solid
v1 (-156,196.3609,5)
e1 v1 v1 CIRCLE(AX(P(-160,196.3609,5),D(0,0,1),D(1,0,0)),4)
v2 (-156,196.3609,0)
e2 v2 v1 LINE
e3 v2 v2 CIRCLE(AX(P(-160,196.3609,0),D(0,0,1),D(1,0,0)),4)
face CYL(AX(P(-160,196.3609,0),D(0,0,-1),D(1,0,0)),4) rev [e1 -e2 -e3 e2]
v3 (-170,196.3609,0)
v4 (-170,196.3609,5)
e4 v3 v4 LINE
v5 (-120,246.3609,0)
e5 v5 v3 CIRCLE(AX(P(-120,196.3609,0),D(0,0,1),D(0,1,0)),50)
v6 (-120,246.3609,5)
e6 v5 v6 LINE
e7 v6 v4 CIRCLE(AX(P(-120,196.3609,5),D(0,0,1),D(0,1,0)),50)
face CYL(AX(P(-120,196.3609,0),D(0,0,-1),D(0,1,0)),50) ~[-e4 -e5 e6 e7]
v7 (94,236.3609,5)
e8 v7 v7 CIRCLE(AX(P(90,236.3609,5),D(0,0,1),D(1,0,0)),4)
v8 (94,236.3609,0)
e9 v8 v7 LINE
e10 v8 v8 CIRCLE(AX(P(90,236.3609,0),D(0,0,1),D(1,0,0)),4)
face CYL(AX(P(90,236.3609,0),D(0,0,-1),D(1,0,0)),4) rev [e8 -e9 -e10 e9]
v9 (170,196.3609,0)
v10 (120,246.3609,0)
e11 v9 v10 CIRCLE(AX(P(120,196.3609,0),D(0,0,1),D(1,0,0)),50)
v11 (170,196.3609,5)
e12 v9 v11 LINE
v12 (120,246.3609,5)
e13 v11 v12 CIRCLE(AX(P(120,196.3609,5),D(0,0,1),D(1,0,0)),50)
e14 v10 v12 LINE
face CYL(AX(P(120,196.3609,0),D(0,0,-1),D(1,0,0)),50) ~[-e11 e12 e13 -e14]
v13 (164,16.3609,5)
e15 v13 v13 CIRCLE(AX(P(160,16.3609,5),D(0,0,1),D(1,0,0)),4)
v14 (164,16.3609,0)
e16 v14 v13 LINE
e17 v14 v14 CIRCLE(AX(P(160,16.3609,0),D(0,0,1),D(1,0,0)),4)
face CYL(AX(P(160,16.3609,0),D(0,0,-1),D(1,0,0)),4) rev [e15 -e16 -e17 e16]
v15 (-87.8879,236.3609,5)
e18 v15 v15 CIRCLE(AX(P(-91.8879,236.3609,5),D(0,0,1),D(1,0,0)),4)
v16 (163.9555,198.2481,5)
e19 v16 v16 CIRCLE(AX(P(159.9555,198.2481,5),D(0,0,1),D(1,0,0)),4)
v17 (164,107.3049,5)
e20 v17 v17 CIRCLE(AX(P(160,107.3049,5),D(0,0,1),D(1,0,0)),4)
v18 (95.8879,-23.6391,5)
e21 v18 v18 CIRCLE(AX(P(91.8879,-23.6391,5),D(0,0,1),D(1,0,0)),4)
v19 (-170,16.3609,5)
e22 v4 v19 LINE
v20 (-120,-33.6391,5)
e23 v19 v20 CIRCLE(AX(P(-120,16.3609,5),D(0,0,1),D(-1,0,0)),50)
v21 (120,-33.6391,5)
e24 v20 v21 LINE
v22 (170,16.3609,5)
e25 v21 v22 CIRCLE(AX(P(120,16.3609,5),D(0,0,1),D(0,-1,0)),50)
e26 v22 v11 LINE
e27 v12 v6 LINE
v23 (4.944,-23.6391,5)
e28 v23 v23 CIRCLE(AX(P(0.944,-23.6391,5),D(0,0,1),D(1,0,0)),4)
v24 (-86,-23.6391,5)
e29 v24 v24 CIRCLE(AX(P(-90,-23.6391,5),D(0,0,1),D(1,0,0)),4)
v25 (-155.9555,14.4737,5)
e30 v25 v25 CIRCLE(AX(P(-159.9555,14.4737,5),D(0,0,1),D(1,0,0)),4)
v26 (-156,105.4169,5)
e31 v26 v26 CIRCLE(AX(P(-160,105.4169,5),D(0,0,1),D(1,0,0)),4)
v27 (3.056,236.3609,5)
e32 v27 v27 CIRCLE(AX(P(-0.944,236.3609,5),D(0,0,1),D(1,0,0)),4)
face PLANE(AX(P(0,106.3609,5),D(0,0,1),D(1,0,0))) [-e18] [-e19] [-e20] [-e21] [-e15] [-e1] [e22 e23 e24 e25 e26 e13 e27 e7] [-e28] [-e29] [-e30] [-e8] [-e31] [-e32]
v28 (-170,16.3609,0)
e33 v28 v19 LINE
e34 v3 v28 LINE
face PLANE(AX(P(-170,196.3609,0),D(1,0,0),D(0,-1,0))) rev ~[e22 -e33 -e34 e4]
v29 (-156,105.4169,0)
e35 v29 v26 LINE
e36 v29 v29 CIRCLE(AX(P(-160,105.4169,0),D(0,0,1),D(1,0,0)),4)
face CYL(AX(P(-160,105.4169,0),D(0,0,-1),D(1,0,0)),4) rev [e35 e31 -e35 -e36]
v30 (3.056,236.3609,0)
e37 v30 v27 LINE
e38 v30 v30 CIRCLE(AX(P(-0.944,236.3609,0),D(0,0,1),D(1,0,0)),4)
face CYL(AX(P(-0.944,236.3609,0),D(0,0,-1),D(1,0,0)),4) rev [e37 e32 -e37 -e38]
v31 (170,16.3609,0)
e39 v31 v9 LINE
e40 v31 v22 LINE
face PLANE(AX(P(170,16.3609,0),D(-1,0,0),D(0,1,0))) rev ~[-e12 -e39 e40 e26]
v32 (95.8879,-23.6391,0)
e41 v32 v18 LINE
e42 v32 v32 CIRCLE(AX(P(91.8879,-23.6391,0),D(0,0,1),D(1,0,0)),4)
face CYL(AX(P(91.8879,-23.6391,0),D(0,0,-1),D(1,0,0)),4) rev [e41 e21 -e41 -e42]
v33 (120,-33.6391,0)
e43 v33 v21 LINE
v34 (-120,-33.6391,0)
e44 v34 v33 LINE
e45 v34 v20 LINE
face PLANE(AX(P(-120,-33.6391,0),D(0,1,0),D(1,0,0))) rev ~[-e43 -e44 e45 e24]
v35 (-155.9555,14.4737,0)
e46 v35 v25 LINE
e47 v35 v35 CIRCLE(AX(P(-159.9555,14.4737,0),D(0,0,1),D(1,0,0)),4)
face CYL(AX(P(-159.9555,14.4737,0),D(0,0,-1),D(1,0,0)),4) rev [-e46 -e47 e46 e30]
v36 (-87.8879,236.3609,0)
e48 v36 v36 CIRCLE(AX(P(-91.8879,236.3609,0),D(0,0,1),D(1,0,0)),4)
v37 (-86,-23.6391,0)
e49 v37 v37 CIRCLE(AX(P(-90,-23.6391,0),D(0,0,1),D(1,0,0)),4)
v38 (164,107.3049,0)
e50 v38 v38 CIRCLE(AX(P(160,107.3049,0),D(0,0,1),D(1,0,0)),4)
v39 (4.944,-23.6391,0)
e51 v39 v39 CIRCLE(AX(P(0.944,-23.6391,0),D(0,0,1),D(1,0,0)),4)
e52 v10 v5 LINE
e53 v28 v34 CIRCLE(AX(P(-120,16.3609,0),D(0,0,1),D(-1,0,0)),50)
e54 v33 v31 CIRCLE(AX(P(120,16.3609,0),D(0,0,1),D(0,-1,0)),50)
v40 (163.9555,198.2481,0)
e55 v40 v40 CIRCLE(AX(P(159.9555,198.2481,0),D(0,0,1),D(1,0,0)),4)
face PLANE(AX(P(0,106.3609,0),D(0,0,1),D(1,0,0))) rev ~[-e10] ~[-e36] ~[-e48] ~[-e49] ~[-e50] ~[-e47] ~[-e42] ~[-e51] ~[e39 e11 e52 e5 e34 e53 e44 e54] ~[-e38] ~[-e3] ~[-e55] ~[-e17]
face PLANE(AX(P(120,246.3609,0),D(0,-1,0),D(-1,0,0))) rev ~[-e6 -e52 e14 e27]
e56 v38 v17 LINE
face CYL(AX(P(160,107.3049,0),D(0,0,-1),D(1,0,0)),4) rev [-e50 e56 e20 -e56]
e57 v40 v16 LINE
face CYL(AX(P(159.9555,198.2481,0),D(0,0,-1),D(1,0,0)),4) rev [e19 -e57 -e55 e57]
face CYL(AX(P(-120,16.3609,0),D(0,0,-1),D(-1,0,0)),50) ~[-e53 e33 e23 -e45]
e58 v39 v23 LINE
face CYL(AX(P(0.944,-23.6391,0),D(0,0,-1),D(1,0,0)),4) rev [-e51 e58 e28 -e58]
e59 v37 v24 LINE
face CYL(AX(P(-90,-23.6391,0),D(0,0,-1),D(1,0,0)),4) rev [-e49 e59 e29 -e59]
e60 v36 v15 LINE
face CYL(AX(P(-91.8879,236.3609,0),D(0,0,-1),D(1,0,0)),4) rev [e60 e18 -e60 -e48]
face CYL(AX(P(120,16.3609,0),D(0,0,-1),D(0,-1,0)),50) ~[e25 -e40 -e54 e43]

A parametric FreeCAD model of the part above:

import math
import FreeCAD as App
import Part
import Sketcher

doc = App.newDocument("Part")
body = doc.addObject("PartDesign::Body", "Body")

sketch1 = body.newObject("Sketcher::SketchObject", "Sketch")
sketch1.AttachmentSupport = (doc.getObject("XY_Plane"), [""])
sketch1.MapMode = "FlatFace"
sketch1.addGeometry([
    Part.LineSegment(App.Vector(-170, 196.4, 0), App.Vector(-170, 16.4, 0)),
    Part.ArcOfCircle(Part.Circle(App.Vector(-120, 16.4, 0), App.Vector(0, 0, 1), 50), math.radians(180), math.radians(270)),
    Part.LineSegment(App.Vector(-120, -33.6, 0), App.Vector(120, -33.6, 0)),
    Part.ArcOfCircle(Part.Circle(App.Vector(120, 16.4, 0), App.Vector(0, 0, 1), 50), math.radians(-90), math.radians(0)),
    Part.LineSegment(App.Vector(170, 16.4, 0), App.Vector(170, 196.4, 0)),
    Part.ArcOfCircle(Part.Circle(App.Vector(120, 196.4, 0), App.Vector(0, 0, 1), 50), math.radians(0), math.radians(90)),
    Part.LineSegment(App.Vector(120, 246.4, 0), App.Vector(-120, 246.4, 0)),
    Part.ArcOfCircle(Part.Circle(App.Vector(-120, 196.4, 0), App.Vector(0, 0, 1), 50), math.radians(90), math.radians(180)),
    Part.Circle(App.Vector(-90, -23.6, 0), App.Vector(0, 0, 1), 4),
    Part.Circle(App.Vector(-160, 14.5, 0), App.Vector(0, 0, 1), 4),
    Part.Circle(App.Vector(-160, 105.4, 0), App.Vector(0, 0, 1), 4),
    Part.Circle(App.Vector(0.9, -23.6, 0), App.Vector(0, 0, 1), 4),
    Part.Circle(App.Vector(91.9, -23.6, 0), App.Vector(0, 0, 1), 4),
    Part.Circle(App.Vector(160, 16.4, 0), App.Vector(0, 0, 1), 4),
    Part.Circle(App.Vector(-160, 196.4, 0), App.Vector(0, 0, 1), 4),
    Part.Circle(App.Vector(-91.9, 236.4, 0), App.Vector(0, 0, 1), 4),
    Part.Circle(App.Vector(-0.9, 236.4, 0), App.Vector(0, 0, 1), 4),
    Part.Circle(App.Vector(160, 107.3, 0), App.Vector(0, 0, 1), 4),
    Part.Circle(App.Vector(160, 198.2, 0), App.Vector(0, 0, 1), 4),
    Part.Circle(App.Vector(90, 236.4, 0), App.Vector(0, 0, 1), 4),
], False)
sketch1.addConstraint([
    Sketcher.Constraint("Tangent", 0, 2, 1, 1),
    Sketcher.Constraint("Tangent", 1, 2, 2, 1),
    Sketcher.Constraint("Tangent", 2, 2, 3, 1),
    Sketcher.Constraint("Tangent", 3, 2, 4, 1),
    Sketcher.Constraint("Tangent", 4, 2, 5, 1),
    Sketcher.Constraint("Tangent", 5, 2, 6, 1),
    Sketcher.Constraint("Tangent", 6, 2, 7, 1),
    Sketcher.Constraint("Tangent", 7, 2, 0, 1),
    Sketcher.Constraint("Vertical", 0),
    Sketcher.Constraint("Horizontal", 2),
    Sketcher.Constraint("Vertical", 4),
    Sketcher.Constraint("Horizontal", 6),
    Sketcher.Constraint("Equal", 1, 3),
    Sketcher.Constraint("Equal", 3, 5),
    Sketcher.Constraint("Equal", 5, 7),
    Sketcher.Constraint("Equal", 8, 9),
    Sketcher.Constraint("Equal", 9, 10),
    Sketcher.Constraint("Equal", 10, 11),
    Sketcher.Constraint("Equal", 11, 12),
    Sketcher.Constraint("Equal", 12, 13),
    Sketcher.Constraint("Equal", 13, 14),
    Sketcher.Constraint("Equal", 14, 15),
    Sketcher.Constraint("Equal", 15, 16),
    Sketcher.Constraint("Equal", 16, 17),
    Sketcher.Constraint("Equal", 17, 18),
    Sketcher.Constraint("Equal", 18, 19),
    Sketcher.Constraint("Horizontal", 8, 3, 11, 3),
    Sketcher.Constraint("Horizontal", 11, 3, 12, 3),
    Sketcher.Constraint("Horizontal", 3, 3, 13, 3),
    Sketcher.Constraint("Horizontal", 7, 3, 14, 3),
    Sketcher.Constraint("Horizontal", 15, 3, 16, 3),
    Sketcher.Constraint("Horizontal", 16, 3, 19, 3),
    Sketcher.Constraint("Vertical", 10, 3, 14, 3),
    Sketcher.Constraint("Vertical", 13, 3, 17, 3),
    Sketcher.Constraint("Diameter", 8, 8.0),
    Sketcher.Constraint("Radius", 1, 50.0),
    Sketcher.Constraint("DistanceX", 2, 1, 2, 2, 240.0),
    Sketcher.Constraint("DistanceY", 0, 2, 0, 1, 180.0),
    Sketcher.Constraint("DistanceX", 1, 3, -1, 1, 120.0),
    Sketcher.Constraint("DistanceX", 8, 3, -1, 1, 90.0),
    Sketcher.Constraint("DistanceX", 10, 3, -1, 1, 160.0),
    Sketcher.Constraint("DistanceX", -1, 1, 13, 3, 160.0),
    Sketcher.Constraint("DistanceX", -1, 1, 19, 3, 90.0),
    Sketcher.Constraint("DistanceY", 8, 3, 1, 3, 40.0),
    Sketcher.Constraint("DistanceY", 7, 3, 15, 3, 40.0),
    Sketcher.Constraint("DistanceY", -1, 1, 1, 3, 16.361),
    Sketcher.Constraint("DistanceY", -1, 1, 10, 3, 105.417),
    Sketcher.Constraint("DistanceX", -1, 1, 11, 3, 0.944),
    Sketcher.Constraint("DistanceX", -1, 1, 12, 3, 91.888),
    Sketcher.Constraint("DistanceX", 15, 3, -1, 1, 91.888),
    Sketcher.Constraint("DistanceX", 16, 3, -1, 1, 0.944),
    Sketcher.Constraint("DistanceY", -1, 1, 17, 3, 107.305),
    Sketcher.Constraint("DistanceY", -1, 1, 18, 3, 198.248),
    Sketcher.Constraint("DistanceX", 9, 3, -1, 1, 159.9555),
    Sketcher.Constraint("DistanceY", -1, 1, 9, 3, 14.4737),
    Sketcher.Constraint("DistanceX", -1, 1, 18, 3, 159.9555),
])
pad1 = body.newObject("PartDesign::Pad", "Pad")
pad1.Profile = sketch1
pad1.Length = 5

doc.recompute()
